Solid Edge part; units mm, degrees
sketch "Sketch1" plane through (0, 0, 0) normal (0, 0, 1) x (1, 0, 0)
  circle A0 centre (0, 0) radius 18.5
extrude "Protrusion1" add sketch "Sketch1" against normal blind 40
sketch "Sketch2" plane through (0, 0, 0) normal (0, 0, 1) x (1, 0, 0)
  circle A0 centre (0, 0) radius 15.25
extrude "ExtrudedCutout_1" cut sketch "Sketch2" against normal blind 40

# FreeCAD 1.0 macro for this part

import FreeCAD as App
import Part
import Sketcher

doc = App.newDocument("Part")
body = doc.addObject("PartDesign::Body", "Body")

# Sketch on XY plane
sketch1 = body.newObject("Sketcher::SketchObject", "Sketch")
sketch1.AttachmentSupport = (doc.getObject("XY_Plane"), [""])
sketch1.MapMode = "FlatFace"
sketch1.addGeometry(Part.Circle(App.Vector(0, 0, 0), App.Vector(0, 0, 1), 18), False)
sketch1.addConstraint(Sketcher.Constraint("Coincident", 0, 3, -1, 1))
sketch1.addConstraint(Sketcher.Constraint("Diameter", 0, 37.0))
pad1 = body.newObject("PartDesign::Pad", "Pad")
pad1.Profile = sketch1
pad1.Length = 40
pad1.Reversed = True

# Sketch on XY plane
sketch2 = body.newObject("Sketcher::SketchObject", "Sketch001")
sketch2.AttachmentSupport = (doc.getObject("XY_Plane"), [""])
sketch2.MapMode = "FlatFace"
sketch2.addGeometry(Part.Circle(App.Vector(0, 0, 0), App.Vector(0, 0, 1), 15), False)
sketch2.addConstraint(Sketcher.Constraint("Coincident", 0, 3, -1, 1))
sketch2.addConstraint(Sketcher.Constraint("Diameter", 0, 30.5))
pocket1 = body.newObject("PartDesign::Pocket", "Pocket")
pocket1.Profile = sketch2
pocket1.Length = 40

doc.recompute()
